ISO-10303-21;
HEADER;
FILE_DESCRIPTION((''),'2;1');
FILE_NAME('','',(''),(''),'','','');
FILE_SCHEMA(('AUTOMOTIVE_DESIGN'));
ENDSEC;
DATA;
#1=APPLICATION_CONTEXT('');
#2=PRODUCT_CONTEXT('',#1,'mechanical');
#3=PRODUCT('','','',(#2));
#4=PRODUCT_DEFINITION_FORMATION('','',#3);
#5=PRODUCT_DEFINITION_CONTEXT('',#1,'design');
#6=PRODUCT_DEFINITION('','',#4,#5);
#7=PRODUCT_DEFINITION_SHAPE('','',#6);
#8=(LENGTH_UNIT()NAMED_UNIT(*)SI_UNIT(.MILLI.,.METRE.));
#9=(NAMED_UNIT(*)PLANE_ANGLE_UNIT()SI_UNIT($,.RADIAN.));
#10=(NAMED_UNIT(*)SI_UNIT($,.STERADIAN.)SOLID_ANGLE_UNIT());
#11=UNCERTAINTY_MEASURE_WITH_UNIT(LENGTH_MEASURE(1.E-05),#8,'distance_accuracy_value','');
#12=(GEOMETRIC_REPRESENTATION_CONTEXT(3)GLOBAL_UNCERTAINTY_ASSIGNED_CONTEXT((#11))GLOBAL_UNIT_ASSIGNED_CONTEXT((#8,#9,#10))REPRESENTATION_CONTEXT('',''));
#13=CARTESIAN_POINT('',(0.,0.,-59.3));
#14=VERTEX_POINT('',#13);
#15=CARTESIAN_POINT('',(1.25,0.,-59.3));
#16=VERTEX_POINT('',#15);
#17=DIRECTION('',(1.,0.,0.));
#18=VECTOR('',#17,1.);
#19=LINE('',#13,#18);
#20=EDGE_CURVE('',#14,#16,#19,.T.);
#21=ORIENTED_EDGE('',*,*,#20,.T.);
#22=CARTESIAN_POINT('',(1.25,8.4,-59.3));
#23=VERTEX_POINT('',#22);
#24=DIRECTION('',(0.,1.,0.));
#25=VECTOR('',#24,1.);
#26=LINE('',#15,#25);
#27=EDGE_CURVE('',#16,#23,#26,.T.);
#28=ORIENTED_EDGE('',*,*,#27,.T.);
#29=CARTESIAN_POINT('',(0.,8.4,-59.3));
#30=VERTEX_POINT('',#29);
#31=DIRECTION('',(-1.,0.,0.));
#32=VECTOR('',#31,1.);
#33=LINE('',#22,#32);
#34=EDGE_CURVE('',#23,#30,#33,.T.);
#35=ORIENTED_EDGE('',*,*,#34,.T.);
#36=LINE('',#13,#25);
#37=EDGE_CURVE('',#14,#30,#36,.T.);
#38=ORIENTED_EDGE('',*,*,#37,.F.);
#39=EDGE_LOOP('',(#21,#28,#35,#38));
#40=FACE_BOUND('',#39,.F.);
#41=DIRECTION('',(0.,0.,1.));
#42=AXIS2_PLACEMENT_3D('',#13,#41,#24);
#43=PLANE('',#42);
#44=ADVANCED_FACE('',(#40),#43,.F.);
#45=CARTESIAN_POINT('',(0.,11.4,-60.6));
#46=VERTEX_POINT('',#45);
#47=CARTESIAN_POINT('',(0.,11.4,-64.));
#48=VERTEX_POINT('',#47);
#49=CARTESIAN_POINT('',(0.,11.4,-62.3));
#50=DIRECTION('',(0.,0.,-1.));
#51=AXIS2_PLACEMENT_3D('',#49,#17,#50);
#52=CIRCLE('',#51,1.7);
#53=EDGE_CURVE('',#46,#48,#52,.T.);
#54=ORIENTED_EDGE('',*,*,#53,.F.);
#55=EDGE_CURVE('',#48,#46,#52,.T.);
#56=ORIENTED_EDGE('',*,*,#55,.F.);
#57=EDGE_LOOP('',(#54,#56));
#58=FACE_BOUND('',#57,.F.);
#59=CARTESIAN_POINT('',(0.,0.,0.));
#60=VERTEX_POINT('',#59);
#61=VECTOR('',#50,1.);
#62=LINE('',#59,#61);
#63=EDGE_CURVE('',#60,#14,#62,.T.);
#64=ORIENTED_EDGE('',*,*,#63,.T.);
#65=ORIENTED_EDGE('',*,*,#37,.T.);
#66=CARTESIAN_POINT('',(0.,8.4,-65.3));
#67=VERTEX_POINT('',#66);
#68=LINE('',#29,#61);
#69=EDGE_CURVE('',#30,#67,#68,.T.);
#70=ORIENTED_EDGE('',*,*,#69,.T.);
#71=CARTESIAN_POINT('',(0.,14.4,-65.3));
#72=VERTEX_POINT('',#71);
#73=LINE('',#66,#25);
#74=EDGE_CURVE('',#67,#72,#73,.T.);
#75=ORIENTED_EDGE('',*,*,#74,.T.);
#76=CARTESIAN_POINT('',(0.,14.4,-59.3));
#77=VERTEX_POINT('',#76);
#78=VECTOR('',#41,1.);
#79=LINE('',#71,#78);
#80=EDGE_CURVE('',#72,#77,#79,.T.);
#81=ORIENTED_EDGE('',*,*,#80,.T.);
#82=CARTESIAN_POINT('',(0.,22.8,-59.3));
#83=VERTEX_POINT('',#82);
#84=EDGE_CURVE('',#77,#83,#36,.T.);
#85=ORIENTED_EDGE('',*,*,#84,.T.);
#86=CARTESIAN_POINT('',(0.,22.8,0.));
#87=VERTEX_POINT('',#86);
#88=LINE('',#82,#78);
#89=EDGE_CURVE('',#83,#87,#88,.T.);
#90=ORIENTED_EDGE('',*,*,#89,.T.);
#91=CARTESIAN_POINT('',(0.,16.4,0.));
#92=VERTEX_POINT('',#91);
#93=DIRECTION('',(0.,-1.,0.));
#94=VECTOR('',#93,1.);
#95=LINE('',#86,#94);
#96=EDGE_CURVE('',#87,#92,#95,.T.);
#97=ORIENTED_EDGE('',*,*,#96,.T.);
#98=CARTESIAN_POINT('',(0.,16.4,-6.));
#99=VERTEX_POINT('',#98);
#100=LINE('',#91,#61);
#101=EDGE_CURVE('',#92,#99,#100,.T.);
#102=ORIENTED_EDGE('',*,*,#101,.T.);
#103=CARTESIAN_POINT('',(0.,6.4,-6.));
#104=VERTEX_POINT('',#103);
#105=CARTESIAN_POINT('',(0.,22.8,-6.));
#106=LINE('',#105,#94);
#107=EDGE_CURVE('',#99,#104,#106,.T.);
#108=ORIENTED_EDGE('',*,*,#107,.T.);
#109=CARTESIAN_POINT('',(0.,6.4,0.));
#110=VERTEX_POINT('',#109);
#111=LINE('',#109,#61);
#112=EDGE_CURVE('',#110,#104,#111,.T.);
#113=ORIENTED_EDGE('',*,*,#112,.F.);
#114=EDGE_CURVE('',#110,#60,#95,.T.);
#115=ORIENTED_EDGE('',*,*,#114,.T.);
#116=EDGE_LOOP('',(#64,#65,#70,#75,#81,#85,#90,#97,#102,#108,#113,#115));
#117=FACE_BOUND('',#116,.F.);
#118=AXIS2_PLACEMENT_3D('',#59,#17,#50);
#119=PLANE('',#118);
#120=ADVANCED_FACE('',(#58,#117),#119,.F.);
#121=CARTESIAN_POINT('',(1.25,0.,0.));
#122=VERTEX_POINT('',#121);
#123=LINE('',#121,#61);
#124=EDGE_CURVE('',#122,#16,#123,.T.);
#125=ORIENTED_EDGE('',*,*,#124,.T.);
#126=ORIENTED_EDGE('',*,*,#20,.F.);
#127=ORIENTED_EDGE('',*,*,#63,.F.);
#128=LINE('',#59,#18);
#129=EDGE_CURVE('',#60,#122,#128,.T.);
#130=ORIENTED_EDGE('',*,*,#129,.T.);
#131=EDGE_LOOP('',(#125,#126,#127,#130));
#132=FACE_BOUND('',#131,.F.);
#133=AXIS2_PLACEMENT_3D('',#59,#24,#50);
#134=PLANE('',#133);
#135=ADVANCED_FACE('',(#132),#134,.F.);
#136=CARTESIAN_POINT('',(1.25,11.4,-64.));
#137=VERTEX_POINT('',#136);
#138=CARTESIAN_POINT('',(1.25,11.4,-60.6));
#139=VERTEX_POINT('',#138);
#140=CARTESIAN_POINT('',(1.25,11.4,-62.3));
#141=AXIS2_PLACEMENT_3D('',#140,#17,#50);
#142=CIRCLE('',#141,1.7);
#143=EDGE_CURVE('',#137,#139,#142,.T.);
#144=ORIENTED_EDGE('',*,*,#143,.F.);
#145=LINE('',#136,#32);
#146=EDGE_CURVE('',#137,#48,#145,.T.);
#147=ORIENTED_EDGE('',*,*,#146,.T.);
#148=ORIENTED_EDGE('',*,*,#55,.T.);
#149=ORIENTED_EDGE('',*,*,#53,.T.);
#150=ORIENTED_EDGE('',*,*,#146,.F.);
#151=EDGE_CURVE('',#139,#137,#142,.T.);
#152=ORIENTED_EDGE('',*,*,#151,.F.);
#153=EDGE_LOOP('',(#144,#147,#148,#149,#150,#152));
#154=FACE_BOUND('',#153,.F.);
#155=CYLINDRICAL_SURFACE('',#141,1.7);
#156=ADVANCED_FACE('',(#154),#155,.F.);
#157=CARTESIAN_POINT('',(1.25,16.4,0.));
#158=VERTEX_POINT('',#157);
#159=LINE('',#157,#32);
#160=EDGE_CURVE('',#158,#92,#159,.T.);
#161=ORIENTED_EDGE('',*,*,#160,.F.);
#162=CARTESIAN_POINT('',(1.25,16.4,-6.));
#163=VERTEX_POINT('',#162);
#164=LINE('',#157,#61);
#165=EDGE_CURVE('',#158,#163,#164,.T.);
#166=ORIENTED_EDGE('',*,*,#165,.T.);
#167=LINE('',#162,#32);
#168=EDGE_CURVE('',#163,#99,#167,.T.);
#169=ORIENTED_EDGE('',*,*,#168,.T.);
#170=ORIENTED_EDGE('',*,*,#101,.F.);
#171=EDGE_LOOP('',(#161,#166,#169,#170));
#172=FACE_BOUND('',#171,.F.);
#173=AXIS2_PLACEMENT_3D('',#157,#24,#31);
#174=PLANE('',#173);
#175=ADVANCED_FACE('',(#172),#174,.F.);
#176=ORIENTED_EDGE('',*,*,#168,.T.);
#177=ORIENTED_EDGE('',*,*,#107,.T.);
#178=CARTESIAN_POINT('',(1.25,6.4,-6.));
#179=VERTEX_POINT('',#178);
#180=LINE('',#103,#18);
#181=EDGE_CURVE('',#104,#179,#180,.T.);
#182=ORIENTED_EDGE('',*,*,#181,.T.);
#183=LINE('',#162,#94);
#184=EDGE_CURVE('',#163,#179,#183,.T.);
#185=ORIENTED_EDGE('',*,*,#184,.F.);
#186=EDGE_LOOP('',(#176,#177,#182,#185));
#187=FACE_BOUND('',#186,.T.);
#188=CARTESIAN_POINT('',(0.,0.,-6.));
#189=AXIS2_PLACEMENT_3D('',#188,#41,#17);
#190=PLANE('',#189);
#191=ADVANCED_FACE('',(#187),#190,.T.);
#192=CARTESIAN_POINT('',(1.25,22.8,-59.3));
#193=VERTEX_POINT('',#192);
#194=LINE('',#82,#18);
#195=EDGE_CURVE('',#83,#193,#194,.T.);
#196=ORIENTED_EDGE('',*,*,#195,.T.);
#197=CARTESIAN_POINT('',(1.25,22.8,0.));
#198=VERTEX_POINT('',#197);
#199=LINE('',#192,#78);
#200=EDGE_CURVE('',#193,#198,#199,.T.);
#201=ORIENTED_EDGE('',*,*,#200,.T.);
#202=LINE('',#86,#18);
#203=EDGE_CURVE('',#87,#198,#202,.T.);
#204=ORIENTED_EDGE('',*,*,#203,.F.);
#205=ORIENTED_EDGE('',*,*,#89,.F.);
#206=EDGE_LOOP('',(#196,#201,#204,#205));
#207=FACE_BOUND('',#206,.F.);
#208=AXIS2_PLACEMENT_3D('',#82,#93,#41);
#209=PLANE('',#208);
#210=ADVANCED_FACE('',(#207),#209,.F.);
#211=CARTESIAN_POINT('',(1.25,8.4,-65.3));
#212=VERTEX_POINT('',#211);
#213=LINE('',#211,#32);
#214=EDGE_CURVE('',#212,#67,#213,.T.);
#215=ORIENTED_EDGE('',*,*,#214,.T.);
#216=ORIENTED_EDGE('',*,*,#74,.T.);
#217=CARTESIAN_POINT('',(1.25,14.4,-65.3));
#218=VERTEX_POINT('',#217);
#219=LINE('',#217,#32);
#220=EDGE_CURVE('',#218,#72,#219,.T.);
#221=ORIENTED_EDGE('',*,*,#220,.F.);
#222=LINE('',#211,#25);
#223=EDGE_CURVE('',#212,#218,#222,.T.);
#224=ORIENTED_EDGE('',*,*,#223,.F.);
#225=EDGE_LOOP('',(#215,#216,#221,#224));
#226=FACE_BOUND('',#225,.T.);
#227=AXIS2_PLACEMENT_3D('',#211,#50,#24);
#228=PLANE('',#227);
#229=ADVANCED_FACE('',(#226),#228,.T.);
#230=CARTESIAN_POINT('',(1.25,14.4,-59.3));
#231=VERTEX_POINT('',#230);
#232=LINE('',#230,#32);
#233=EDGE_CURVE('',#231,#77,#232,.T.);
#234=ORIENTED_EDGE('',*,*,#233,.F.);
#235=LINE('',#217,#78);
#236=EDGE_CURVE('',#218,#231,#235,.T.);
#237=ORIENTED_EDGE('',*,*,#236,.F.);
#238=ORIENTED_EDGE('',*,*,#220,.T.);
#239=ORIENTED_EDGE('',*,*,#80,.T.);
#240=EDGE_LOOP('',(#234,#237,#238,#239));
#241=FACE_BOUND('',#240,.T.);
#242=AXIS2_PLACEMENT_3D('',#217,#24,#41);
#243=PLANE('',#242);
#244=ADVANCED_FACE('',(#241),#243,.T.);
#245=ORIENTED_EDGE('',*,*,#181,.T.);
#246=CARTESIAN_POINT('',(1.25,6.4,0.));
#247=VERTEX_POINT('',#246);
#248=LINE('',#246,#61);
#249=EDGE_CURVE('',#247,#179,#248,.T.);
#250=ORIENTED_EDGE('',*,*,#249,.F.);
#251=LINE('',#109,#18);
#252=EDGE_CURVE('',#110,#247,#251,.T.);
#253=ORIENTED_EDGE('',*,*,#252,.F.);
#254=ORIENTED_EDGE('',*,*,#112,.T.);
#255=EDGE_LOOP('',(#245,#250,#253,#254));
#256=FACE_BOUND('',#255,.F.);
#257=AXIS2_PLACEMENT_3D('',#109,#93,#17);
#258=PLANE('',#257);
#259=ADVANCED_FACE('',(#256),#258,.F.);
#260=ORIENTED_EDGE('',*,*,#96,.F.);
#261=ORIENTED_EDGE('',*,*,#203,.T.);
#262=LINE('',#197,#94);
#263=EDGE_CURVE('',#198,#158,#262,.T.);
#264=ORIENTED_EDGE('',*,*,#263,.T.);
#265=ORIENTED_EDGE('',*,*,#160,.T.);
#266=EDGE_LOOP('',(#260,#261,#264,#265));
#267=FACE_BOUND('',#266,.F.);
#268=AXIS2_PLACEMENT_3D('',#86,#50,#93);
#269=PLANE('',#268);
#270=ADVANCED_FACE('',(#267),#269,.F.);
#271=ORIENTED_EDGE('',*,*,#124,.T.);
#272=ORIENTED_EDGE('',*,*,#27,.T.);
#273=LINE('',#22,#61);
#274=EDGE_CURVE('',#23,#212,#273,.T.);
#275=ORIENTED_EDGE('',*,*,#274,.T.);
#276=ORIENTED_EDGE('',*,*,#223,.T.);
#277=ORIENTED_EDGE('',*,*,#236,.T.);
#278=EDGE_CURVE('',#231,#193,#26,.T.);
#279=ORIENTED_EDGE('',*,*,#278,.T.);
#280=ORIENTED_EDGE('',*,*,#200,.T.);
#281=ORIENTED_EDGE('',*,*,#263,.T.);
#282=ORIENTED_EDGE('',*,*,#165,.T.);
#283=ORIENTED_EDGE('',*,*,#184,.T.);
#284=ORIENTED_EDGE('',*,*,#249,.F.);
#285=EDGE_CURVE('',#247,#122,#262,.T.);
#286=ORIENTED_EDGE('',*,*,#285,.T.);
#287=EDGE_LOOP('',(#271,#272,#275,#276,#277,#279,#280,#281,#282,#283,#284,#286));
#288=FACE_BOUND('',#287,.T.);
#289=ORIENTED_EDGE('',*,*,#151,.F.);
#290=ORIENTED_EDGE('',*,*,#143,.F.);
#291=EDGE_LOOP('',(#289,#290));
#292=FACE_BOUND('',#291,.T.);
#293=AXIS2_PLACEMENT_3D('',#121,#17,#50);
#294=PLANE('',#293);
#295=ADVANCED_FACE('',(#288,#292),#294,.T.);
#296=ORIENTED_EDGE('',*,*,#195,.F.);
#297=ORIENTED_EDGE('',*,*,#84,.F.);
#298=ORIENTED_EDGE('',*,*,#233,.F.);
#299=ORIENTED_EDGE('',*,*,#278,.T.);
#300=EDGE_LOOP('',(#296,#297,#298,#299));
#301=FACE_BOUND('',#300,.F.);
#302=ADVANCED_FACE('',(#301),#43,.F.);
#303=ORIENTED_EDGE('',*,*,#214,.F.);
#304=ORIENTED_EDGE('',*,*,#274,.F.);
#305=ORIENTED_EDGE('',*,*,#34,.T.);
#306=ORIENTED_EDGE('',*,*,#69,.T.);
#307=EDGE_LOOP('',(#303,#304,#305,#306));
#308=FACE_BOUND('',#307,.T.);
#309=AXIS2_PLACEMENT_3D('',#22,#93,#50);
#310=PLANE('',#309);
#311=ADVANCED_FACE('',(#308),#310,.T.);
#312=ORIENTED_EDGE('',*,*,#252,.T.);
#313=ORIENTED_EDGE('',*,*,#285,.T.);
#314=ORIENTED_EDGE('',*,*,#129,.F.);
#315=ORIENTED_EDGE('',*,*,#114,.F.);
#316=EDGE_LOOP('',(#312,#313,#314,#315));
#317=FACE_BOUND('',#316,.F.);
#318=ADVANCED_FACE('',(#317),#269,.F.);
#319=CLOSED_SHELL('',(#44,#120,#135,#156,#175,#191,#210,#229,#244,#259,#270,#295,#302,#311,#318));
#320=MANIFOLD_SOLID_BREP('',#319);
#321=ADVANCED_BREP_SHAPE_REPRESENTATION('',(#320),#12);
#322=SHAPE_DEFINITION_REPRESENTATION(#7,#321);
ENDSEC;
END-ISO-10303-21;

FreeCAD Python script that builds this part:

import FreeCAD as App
import Part
import Sketcher


def add_polygon(sketch, points):
    """Adds a closed chain of lines whose ends are joined by coincident constraints."""
    first, n = sketch.GeometryCount, len(points)
    for a, b in zip(points, points[1:] + points[:1]):
        sketch.addGeometry(Part.LineSegment(App.Vector(*a, 0), App.Vector(*b, 0)), False)
    for i in range(n):
        sketch.addConstraint(Sketcher.Constraint("Coincident", first + i, 2, first + (i + 1) % n, 1))

doc = App.newDocument("Part")
body = doc.addObject("PartDesign::Body", "Body")

sketch1 = body.newObject("Sketcher::SketchObject", "Sketch")
sketch1.AttachmentSupport = (doc.getObject("YZ_Plane"), [""])
sketch1.MapMode = "FlatFace"
add_polygon(sketch1, [(22.8, 0), (0, 0), (0, -59.3), (22.8, -59.3)])
sketch1.addConstraint([
    Sketcher.Constraint("Horizontal", 0),
    Sketcher.Constraint("Vertical", 1),
    Sketcher.Constraint("Horizontal", 2),
    Sketcher.Constraint("Vertical", 3),
    Sketcher.Constraint("Coincident", 0, 2, -1, 1),
    Sketcher.Constraint("DistanceX", 0, 2, 0, 1, 22.8),
    Sketcher.Constraint("DistanceY", 1, 2, 1, 1, 59.3),
])
pad1 = body.newObject("PartDesign::Pad", "Pad")
pad1.Profile = sketch1
pad1.Length = 1.25

sketch2 = body.newObject("Sketcher::SketchObject", "Sketch001")
sketch2.AttachmentSupport = (doc.getObject("XY_Plane"), [""])
sketch2.MapMode = "FlatFace"
add_polygon(sketch2, [(1.25, 16.4), (0, 16.4), (0, 6.4), (1.25, 6.4)])
sketch2.addConstraint([
    Sketcher.Constraint("Horizontal", 0),
    Sketcher.Constraint("Vertical", 1),
    Sketcher.Constraint("Horizontal", 2),
    Sketcher.Constraint("Vertical", 3),
    Sketcher.Constraint("PointOnObject", 0, 2, -2),
    Sketcher.Constraint("DistanceY", 1, 2, 1, 1, 10.0),
    Sketcher.Constraint("DistanceX", 0, 2, 0, 1, 1.25),
    Sketcher.Constraint("DistanceY", -1, 1, 0, 2, 16.4),
])
pocket1 = body.newObject("PartDesign::Pocket", "Pocket")
pocket1.Profile = sketch2
pocket1.Length = 6

sketch3 = body.newObject("Sketcher::SketchObject", "Sketch002")
sketch3.AttachmentSupport = (doc.getObject("YZ_Plane"), [""])
sketch3.MapMode = "FlatFace"
sketch3.AttachmentOffset = App.Placement(App.Vector(0, 0, 1.25), App.Rotation())
add_polygon(sketch3, [(11.4, -59.3), (8.4, -59.3), (8.4, -65.3), (14.4, -65.3), (14.4, -59.3)])
sketch3.addGeometry(Part.Circle(App.Vector(11.4, -62.3, 0), App.Vector(0, 0, 1), 1.7), False)
sketch3.addConstraint([
    Sketcher.Constraint("Horizontal", 0),
    Sketcher.Constraint("Vertical", 1),
    Sketcher.Constraint("Horizontal", 2),
    Sketcher.Constraint("Vertical", 3),
    Sketcher.Constraint("Horizontal", 4),
    Sketcher.Constraint("Vertical", 5, 3, 4, 2),
    Sketcher.Constraint("Equal", 0, 4),
    Sketcher.Constraint("Equal", 2, 1),
    Sketcher.Constraint("Diameter", 5, 3.4),
    Sketcher.Constraint("DistanceX", 0, 2, 0, 1, 3.0),
    Sketcher.Constraint("DistanceY", 5, 3, 0, 2, 3.0),
    Sketcher.Constraint("DistanceX", -1, 1, 5, 3, 11.4),
    Sketcher.Constraint("DistanceY", 5, 3, -1, 1, 62.3),
])
pad2 = body.newObject("PartDesign::Pad", "Pad001")
pad2.Profile = sketch3
pad2.Length = 1.25
pad2.Reversed = True

doc.recompute()
